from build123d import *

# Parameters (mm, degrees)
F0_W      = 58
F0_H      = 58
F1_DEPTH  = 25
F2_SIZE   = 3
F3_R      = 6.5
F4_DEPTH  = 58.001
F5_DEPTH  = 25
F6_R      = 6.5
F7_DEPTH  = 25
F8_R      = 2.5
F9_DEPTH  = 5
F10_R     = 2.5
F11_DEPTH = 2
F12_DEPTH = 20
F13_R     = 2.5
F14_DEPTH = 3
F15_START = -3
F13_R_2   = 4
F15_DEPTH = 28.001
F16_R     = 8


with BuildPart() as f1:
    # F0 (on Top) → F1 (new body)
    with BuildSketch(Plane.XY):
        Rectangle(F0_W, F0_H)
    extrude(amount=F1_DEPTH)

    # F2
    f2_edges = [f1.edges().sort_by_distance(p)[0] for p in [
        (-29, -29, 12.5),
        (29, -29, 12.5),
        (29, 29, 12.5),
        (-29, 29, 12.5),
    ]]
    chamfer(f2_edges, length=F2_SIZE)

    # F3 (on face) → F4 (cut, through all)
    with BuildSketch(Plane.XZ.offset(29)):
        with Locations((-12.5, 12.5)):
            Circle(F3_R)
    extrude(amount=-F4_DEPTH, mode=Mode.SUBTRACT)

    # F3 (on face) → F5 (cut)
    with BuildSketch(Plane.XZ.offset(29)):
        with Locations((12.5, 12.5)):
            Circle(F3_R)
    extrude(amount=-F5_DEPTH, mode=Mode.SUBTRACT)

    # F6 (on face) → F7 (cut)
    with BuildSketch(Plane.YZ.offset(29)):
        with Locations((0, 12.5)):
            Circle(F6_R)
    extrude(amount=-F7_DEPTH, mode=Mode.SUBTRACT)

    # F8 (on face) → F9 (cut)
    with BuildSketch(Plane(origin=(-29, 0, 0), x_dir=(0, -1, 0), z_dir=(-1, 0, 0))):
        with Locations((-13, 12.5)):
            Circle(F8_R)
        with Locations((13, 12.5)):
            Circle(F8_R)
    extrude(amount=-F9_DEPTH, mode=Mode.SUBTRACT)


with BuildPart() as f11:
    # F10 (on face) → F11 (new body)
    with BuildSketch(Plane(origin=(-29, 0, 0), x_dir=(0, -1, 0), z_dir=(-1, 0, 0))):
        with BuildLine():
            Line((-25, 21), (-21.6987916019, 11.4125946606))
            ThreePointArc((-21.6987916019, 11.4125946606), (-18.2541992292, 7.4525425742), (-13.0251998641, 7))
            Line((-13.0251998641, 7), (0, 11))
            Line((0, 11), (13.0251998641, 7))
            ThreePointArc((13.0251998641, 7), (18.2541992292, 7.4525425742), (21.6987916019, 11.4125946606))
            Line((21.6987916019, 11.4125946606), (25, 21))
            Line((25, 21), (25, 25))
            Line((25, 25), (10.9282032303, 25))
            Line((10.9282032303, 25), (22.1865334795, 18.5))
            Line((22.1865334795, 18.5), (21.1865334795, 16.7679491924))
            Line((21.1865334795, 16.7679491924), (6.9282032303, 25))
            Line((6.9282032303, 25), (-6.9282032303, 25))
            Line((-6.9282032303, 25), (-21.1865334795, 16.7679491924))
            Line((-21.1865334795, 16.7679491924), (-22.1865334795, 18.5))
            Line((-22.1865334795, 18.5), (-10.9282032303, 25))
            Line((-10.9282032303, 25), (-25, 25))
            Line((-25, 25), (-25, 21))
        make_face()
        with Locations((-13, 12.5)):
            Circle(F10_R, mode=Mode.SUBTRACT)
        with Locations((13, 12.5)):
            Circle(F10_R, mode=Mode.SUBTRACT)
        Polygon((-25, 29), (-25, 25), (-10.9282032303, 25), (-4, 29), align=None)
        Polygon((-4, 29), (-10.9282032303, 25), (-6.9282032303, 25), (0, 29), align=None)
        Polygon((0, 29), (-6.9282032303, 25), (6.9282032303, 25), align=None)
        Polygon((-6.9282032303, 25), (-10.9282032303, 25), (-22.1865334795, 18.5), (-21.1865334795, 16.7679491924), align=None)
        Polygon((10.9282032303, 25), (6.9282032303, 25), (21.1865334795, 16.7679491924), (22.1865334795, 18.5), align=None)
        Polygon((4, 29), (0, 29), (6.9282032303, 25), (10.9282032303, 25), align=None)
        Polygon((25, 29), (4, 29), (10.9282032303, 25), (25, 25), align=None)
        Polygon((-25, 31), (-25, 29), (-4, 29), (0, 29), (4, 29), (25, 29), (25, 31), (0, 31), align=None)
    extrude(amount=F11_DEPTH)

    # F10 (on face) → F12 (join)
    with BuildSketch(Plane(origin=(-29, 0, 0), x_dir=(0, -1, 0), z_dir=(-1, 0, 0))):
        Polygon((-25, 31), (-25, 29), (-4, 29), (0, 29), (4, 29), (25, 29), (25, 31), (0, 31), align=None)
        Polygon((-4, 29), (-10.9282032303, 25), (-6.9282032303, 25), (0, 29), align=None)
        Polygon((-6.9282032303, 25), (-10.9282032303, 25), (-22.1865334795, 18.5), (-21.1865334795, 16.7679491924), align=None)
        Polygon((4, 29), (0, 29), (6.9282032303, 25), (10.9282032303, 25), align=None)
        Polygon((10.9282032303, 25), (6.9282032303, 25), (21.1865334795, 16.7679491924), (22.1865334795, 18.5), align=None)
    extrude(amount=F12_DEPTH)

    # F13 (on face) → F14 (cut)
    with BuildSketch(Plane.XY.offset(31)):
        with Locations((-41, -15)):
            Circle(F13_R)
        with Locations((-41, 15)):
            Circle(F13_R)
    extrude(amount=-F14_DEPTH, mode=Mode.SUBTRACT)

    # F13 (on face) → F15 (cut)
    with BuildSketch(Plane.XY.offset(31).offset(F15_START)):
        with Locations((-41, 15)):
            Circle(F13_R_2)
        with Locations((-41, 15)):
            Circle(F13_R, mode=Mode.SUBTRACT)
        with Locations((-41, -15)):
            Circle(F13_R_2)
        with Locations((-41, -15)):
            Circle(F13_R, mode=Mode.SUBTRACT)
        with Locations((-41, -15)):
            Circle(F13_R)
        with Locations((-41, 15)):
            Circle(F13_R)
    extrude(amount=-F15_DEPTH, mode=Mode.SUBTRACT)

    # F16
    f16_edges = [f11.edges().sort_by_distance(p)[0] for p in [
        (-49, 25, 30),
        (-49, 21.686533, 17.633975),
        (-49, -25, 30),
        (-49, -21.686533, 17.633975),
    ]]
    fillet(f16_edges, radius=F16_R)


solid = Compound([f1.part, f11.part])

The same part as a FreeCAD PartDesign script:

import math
import FreeCAD as App
import Part
import Sketcher
from FreeCAD import Vector
Q = App.Units.Quantity


def edges_at(feature, points):
    """Names of the edges that pass closest to the given points."""
    edges = feature.Shape.Edges
    near = lambda p: min(range(len(edges)), key=lambda i: edges[i].distToShape(Part.Vertex(*p))[0])
    return sorted({f"Edge{near(p) + 1}" for p in points})


def add_polygon(sketch, points):
    """Adds a closed chain of lines whose ends are joined by coincident constraints."""
    first, n = sketch.GeometryCount, len(points)
    for a, b in zip(points, points[1:] + points[:1]):
        sketch.addGeometry(Part.LineSegment(App.Vector(*a, 0), App.Vector(*b, 0)), False)
    for i in range(n):
        sketch.addConstraint(Sketcher.Constraint("Coincident", first + i, 2, first + (i + 1) % n, 1))

doc = App.newDocument("Part")
body = doc.addObject("PartDesign::Body", "Body")

# Sketch on XY plane
sketch1 = body.newObject("Sketcher::SketchObject", "Sketch")
sketch1.AttachmentSupport = (doc.getObject("XY_Plane"), [""])
sketch1.MapMode = "FlatFace"
add_polygon(sketch1, [(-29, 29), (-29, -29), (29, -29), (29, 29)])  # lines 0-3
sketch1.addConstraint(Sketcher.Constraint("Vertical", 0))
sketch1.addConstraint(Sketcher.Constraint("Horizontal", 1))
sketch1.addConstraint(Sketcher.Constraint("Vertical", 2))
sketch1.addConstraint(Sketcher.Constraint("Horizontal", 3))
sketch1.addConstraint(Sketcher.Constraint("Symmetric", 0, 2, 2, 2, -1, 1))
sketch1.addConstraint(Sketcher.Constraint("Equal", 3, 0))
sketch1.addConstraint(Sketcher.Constraint("DistanceX", 1, 1, 1, 2, Q("58 mm")))
pad1 = body.newObject("PartDesign::Pad", "Pad")
pad1.Profile = sketch1
pad1.Length = 25
doc.recompute()

chamfer = body.newObject("PartDesign::Chamfer", "Chamfer")
chamfer.Base = (pad1, edges_at(pad1, [
    (-29, -29, 12.5),
    (29, -29, 12.5),
    (29, 29, 12.5),
    (-29, 29, 12.5),
]))
chamfer.Size = 3

# Sketch on XZ plane
sketch2 = body.newObject("Sketcher::SketchObject", "Sketch001")
sketch2.AttachmentSupport = (doc.getObject("XZ_Plane"), [""])
sketch2.MapMode = "FlatFace"
sketch2.AttachmentOffset = App.Placement(Vector(0, 0, 29), App.Rotation())
sketch2.addGeometry(Part.Circle(Vector(-12, 12, 0), Vector(0, 0, 1), 6), False)
sketch2.addConstraint(Sketcher.Constraint("Diameter", 0, Q("13 mm")))
sketch2.addConstraint(Sketcher.Constraint("DistanceX", 0, 3, -1, 1, Q("12.5 mm")))
sketch2.addConstraint(Sketcher.Constraint("DistanceY", -1, 1, 0, 3, Q("12.5 mm")))
pocket1 = body.newObject("PartDesign::Pocket", "Pocket")
pocket1.Profile = sketch2
pocket1.Type = "ThroughAll"

# Sketch on XZ plane
sketch3 = body.newObject("Sketcher::SketchObject", "Sketch002")
sketch3.AttachmentSupport = (doc.getObject("XZ_Plane"), [""])
sketch3.MapMode = "FlatFace"
sketch3.AttachmentOffset = App.Placement(Vector(0, 0, 29), App.Rotation())
sketch3.addGeometry(Part.Circle(Vector(12, 12, 0), Vector(0, 0, 1), 6), False)
sketch3.addConstraint(Sketcher.Constraint("Diameter", 0, Q("13 mm")))
sketch3.addConstraint(Sketcher.Constraint("DistanceX", -1, 1, 0, 3, Q("12.5 mm")))
sketch3.addConstraint(Sketcher.Constraint("DistanceY", -1, 1, 0, 3, Q("12.5 mm")))
pocket2 = body.newObject("PartDesign::Pocket", "Pocket001")
pocket2.Profile = sketch3
pocket2.Length = 25

# Sketch on YZ plane
sketch4 = body.newObject("Sketcher::SketchObject", "Sketch003")
sketch4.AttachmentSupport = (doc.getObject("YZ_Plane"), [""])
sketch4.MapMode = "FlatFace"
sketch4.AttachmentOffset = App.Placement(Vector(0, 0, 29), App.Rotation())
sketch4.addGeometry(Part.Circle(Vector(0, 12, 0), Vector(0, 0, 1), 6), False)
sketch4.addConstraint(Sketcher.Constraint("PointOnObject", 0, 3, -2))
sketch4.addConstraint(Sketcher.Constraint("Diameter", 0, Q("13 mm")))
sketch4.addConstraint(Sketcher.Constraint("DistanceY", -1, 1, 0, 3, Q("12.5 mm")))
pocket3 = body.newObject("PartDesign::Pocket", "Pocket002")
pocket3.Profile = sketch4
pocket3.Length = 25

# Sketch on YZ plane
sketch5 = body.newObject("Sketcher::SketchObject", "Sketch004")
sketch5.AttachmentSupport = (doc.getObject("YZ_Plane"), [""])
sketch5.MapMode = "FlatFace"
sketch5.AttachmentOffset = App.Placement(Vector(0, 0, -29), App.Rotation())
sketch5.addGeometry(Part.Circle(Vector(13, 12.5, 0), Vector(0, 0, 1), 2.5), False)
sketch5.addGeometry(Part.Circle(Vector(-13, 12.5, 0), Vector(0, 0, 1), 2.5), False)
sketch5.addConstraint(Sketcher.Constraint("Equal", 0, 1))
sketch5.addConstraint(Sketcher.Constraint("Symmetric", 0, 3, 1, 3, -2))
sketch5.addConstraint(Sketcher.Constraint("Diameter", 0, Q("5 mm")))
sketch5.addConstraint(Sketcher.Constraint("DistanceX", -1, 1, 0, 3, Q("13 mm")))
sketch5.addConstraint(Sketcher.Constraint("DistanceY", -1, 1, 0, 3, Q("12.5 mm")))
pocket4 = body.newObject("PartDesign::Pocket", "Pocket003")
pocket4.Profile = sketch5
pocket4.Length = 5
pocket4.Reversed = True
body2 = doc.addObject("PartDesign::Body", "Body001")

# Sketch on YZ plane
sketch6 = body2.newObject("Sketcher::SketchObject", "Sketch005")
sketch6.AttachmentSupport = (doc.getObject("YZ_Plane001"), [""])
sketch6.MapMode = "FlatFace"
sketch6.AttachmentOffset = App.Placement(Vector(0, 0, -29), App.Rotation())
sketch6.addGeometry(Part.LineSegment(Vector(25, 21, 0), Vector(21.7, 11.4, 0)), False)
sketch6.addGeometry(Part.ArcOfCircle(Part.Circle(Vector(15.1, 13.7, 0), Vector(0, 0, 1), 7), math.radians(-107), math.radians(-19)), False)
sketch6.addGeometry(Part.LineSegment(Vector(13, 7, 0), Vector(0, 11, 0)), False)
sketch6.addGeometry(Part.LineSegment(Vector(0, 11, 0), Vector(-13, 7, 0)), False)
sketch6.addGeometry(Part.ArcOfCircle(Part.Circle(Vector(-15.1, 13.7, 0), Vector(0, 0, 1), 7), math.radians(-161), math.radians(-73)), False)
sketch6.addGeometry(Part.LineSegment(Vector(-21.7, 11.4, 0), Vector(-25, 21, 0)), False)
sketch6.addGeometry(Part.LineSegment(Vector(-25, 21, 0), Vector(-25, 31, 0)), False)
sketch6.addGeometry(Part.LineSegment(Vector(-25, 31, 0), Vector(25, 31, 0)), False)
sketch6.addGeometry(Part.LineSegment(Vector(25, 31, 0), Vector(25, 21, 0)), False)
sketch6.addGeometry(Part.Circle(Vector(13, 12.5, 0), Vector(0, 0, 1), 2.5), False)
sketch6.addGeometry(Part.Circle(Vector(-13, 12.5, 0), Vector(0, 0, 1), 2.5), False)
sketch6.addConstraint(Sketcher.Constraint("Tangent", 0, 2, 1, 2))
sketch6.addConstraint(Sketcher.Constraint("Tangent", 1, 1, 2, 1))
sketch6.addConstraint(Sketcher.Constraint("Coincident", 2, 2, 3, 1))
sketch6.addConstraint(Sketcher.Constraint("Tangent", 3, 2, 4, 2))
sketch6.addConstraint(Sketcher.Constraint("Tangent", 4, 1, 5, 1))
sketch6.addConstraint(Sketcher.Constraint("Coincident", 5, 2, 6, 1))
sketch6.addConstraint(Sketcher.Constraint("Coincident", 6, 2, 7, 1))
sketch6.addConstraint(Sketcher.Constraint("Coincident", 7, 2, 8, 1))
sketch6.addConstraint(Sketcher.Constraint("Coincident", 8, 2, 0, 1))
sketch6.addConstraint(Sketcher.Constraint("Vertical", 6))
sketch6.addConstraint(Sketcher.Constraint("Horizontal", 7))
sketch6.addConstraint(Sketcher.Constraint("Vertical", 8))
sketch6.addConstraint(Sketcher.Constraint("Equal", 1, 4))
sketch6.addConstraint(Sketcher.Constraint("Equal", 9, 10))
sketch6.addConstraint(Sketcher.Constraint("Symmetric", 1, 3, 4, 3, -2))
sketch6.addConstraint(Sketcher.Constraint("Symmetric", 9, 3, 10, 3, -2))
sketch6.addConstraint(Sketcher.Constraint("Symmetric", 5, 2, 8, 2, -2))
sketch6.addConstraint(Sketcher.Constraint("PointOnObject", 2, 2, -2))
sketch6.addConstraint(Sketcher.Constraint("Diameter", 9, Q("5 mm")))
sketch6.addConstraint(Sketcher.Constraint("Radius", 1, Q("7 mm")))
sketch6.addConstraint(Sketcher.Constraint("DistanceX", 7, 1, 7, 2, Q("50 mm")))
sketch6.addConstraint(Sketcher.Constraint("DistanceY", 6, 1, 6, 2, Q("10 mm")))
sketch6.addConstraint(Sketcher.Constraint("Angle", 0, Q("-109 deg")))
sketch6.addConstraint(Sketcher.Constraint("DistanceX", -1, 1, 9, 3, Q("13 mm")))
sketch6.addConstraint(Sketcher.Constraint("DistanceY", -1, 1, 1, 1, Q("7 mm")))
sketch6.addConstraint(Sketcher.Constraint("DistanceY", -1, 1, 2, 2, Q("11 mm")))
sketch6.addConstraint(Sketcher.Constraint("DistanceY", -1, 1, 5, 2, Q("21 mm")))
sketch6.addConstraint(Sketcher.Constraint("DistanceY", -1, 1, 9, 3, Q("12.5 mm")))
pad2 = body2.newObject("PartDesign::Pad", "Pad001")
pad2.Profile = sketch6
pad2.Length = 2
pad2.Reversed = True

# Sketch on YZ plane
sketch7 = body2.newObject("Sketcher::SketchObject", "Sketch006")
sketch7.AttachmentSupport = (doc.getObject("YZ_Plane001"), [""])
sketch7.MapMode = "FlatFace"
sketch7.AttachmentOffset = App.Placement(Vector(0, 0, -29), App.Rotation())
add_polygon(sketch7, [(25, 31), (25, 29), (4, 29), (10.9, 25), (22.2, 18.5), (21.2, 16.8), (6.9, 25), (0, 29), (-6.9, 25), (-21.2, 16.8), (-22.2, 18.5), (-10.9, 25), (-4, 29), (-25, 29), (-25, 31)])  # lines 0-14
sketch7.addConstraint(Sketcher.Constraint("Vertical", 0))
sketch7.addConstraint(Sketcher.Constraint("Horizontal", 1))
sketch7.addConstraint(Sketcher.Constraint("Horizontal", 12))
sketch7.addConstraint(Sketcher.Constraint("Vertical", 13))
sketch7.addConstraint(Sketcher.Constraint("Horizontal", 14))
sketch7.addConstraint(Sketcher.Constraint("Symmetric", 5, 2, 7, 2, -2))
sketch7.addConstraint(Sketcher.Constraint("Symmetric", 4, 2, 8, 2, -2))
sketch7.addConstraint(Sketcher.Constraint("Symmetric", 3, 2, 9, 2, -2))
sketch7.addConstraint(Sketcher.Constraint("Symmetric", 2, 2, 10, 2, -2))
sketch7.addConstraint(Sketcher.Constraint("Symmetric", 1, 2, 11, 2, -2))
sketch7.addConstraint(Sketcher.Constraint("PointOnObject", 6, 2, -2))
sketch7.addConstraint(Sketcher.Constraint("Parallel", 2, 3))
sketch7.addConstraint(Sketcher.Constraint("Perpendicular", 3, 4))
sketch7.addConstraint(Sketcher.Constraint("Perpendicular", 4, 5))
sketch7.addConstraint(Sketcher.Constraint("Parallel", 5, 6))
sketch7.addConstraint(Sketcher.Constraint("Horizontal", 2, 2, 5, 2))
sketch7.addConstraint(Sketcher.Constraint("Horizontal", 1, 2, 6, 2))
sketch7.addConstraint(Sketcher.Constraint("Equal", 1, 12))
sketch7.addConstraint(Sketcher.Constraint("DistanceX", 1, 2, 1, 1, Q("21 mm")))
sketch7.addConstraint(Sketcher.Constraint("DistanceX", 14, 1, 14, 2, Q("50 mm")))
sketch7.addConstraint(Sketcher.Constraint("DistanceY", 0, 2, 0, 1, Q("2 mm")))
sketch7.addConstraint(Sketcher.Constraint("Angle", 2, Q("-30 deg")))
sketch7.addConstraint(Sketcher.Constraint("Distance", 2, Q("8 mm")))
sketch7.addConstraint(Sketcher.Constraint("Distance", 3, Q("13 mm")))
sketch7.addConstraint(Sketcher.Constraint("DistanceY", -1, 1, 0, 2, Q("29 mm")))
pad3 = body2.newObject("PartDesign::Pad", "Pad002")
pad3.Profile = sketch7
pad3.Length = 20
pad3.Reversed = True

# Sketch on XY plane
sketch8 = body2.newObject("Sketcher::SketchObject", "Sketch007")
sketch8.AttachmentSupport = (doc.getObject("XY_Plane001"), [""])
sketch8.MapMode = "FlatFace"
sketch8.AttachmentOffset = App.Placement(Vector(0, 0, 31), App.Rotation())
sketch8.addGeometry(Part.Circle(Vector(-41, -15, 0), Vector(0, 0, 1), 2.5), False)
sketch8.addGeometry(Part.Circle(Vector(-41, 15, 0), Vector(0, 0, 1), 2.5), False)
sketch8.addConstraint(Sketcher.Constraint("Equal", 0, 1))
sketch8.addConstraint(Sketcher.Constraint("Symmetric", 0, 3, 1, 3, -1))
sketch8.addConstraint(Sketcher.Constraint("Diameter", 0, Q("5 mm")))
sketch8.addConstraint(Sketcher.Constraint("DistanceX", 0, 3, -1, 1, Q("41 mm")))
sketch8.addConstraint(Sketcher.Constraint("DistanceY", 0, 3, -1, 1, Q("15 mm")))
pocket5 = body2.newObject("PartDesign::Pocket", "Pocket004")
pocket5.Profile = sketch8
pocket5.Length = 3

# Sketch on XY plane
sketch9 = body2.newObject("Sketcher::SketchObject", "Sketch008")
sketch9.AttachmentSupport = (doc.getObject("XY_Plane001"), [""])
sketch9.MapMode = "FlatFace"
sketch9.AttachmentOffset = App.Placement(Vector(0, 0, 28), App.Rotation())
sketch9.addGeometry(Part.Circle(Vector(-41, 15, 0), Vector(0, 0, 1), 4), False)
sketch9.addGeometry(Part.Circle(Vector(-41, -15, 0), Vector(0, 0, 1), 4), False)
sketch9.addConstraint(Sketcher.Constraint("Equal", 0, 1))
sketch9.addConstraint(Sketcher.Constraint("Symmetric", 0, 3, 1, 3, -1))
sketch9.addConstraint(Sketcher.Constraint("Diameter", 0, Q("8 mm")))
sketch9.addConstraint(Sketcher.Constraint("DistanceX", 0, 3, -1, 1, Q("41 mm")))
sketch9.addConstraint(Sketcher.Constraint("DistanceY", -1, 1, 0, 3, Q("15 mm")))
pocket6 = body2.newObject("PartDesign::Pocket", "Pocket005")
pocket6.Profile = sketch9
pocket6.Length = 28.001
doc.recompute()

fillet = body2.newObject("PartDesign::Fillet", "Fillet")
fillet.Base = (pocket6, edges_at(pocket6, [
    (-49, 25, 30),
    (-49, 21.687, 17.634),
    (-49, -25, 30),
    (-49, -21.687, 17.634),
]))
fillet.Radius = 8

doc.recompute()
